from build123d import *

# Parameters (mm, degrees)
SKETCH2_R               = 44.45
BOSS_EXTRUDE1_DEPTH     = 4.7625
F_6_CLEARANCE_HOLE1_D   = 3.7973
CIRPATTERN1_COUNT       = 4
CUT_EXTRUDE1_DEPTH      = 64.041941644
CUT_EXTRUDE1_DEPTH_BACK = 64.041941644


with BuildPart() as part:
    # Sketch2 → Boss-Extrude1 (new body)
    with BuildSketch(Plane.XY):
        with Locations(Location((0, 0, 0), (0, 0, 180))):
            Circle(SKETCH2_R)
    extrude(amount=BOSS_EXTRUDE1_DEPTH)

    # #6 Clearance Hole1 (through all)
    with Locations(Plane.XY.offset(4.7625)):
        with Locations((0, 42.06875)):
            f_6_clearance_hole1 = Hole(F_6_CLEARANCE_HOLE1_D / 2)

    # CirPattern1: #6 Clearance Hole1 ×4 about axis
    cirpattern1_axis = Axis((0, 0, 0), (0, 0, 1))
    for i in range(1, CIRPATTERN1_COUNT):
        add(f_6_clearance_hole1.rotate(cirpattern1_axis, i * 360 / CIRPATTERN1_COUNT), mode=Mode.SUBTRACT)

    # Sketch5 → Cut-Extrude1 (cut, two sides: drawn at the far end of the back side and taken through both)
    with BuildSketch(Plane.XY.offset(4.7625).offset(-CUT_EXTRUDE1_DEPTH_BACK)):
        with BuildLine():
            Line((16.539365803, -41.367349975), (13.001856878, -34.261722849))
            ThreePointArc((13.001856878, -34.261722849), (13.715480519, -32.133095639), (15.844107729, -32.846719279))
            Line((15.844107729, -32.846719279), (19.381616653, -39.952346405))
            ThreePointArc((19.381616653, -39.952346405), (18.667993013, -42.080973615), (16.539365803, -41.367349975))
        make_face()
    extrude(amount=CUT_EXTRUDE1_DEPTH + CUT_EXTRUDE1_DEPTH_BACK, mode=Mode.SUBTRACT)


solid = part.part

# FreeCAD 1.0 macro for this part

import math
import FreeCAD as App
import Part
import Sketcher
Q = App.Units.Quantity

doc = App.newDocument("Part")
params = doc.addObject("Spreadsheet::Sheet", "Params")
for row, (alias, value) in enumerate([
    ("sketch1_diameter", "3.5 in"),
    ("pad1_length", "0.1875 in"),
    ("hole_diameter", "0.1495 in"),
    ("sketch3_radius", "0.0625 in"),
    ("sketch3_length", "0.3125 in"),
], start=1):
    params.set(f"A{row}", alias)
    params.set(f"B{row}", "=" + value)
    params.setAlias(f"B{row}", alias)

body = doc.addObject("PartDesign::Body", "Body")

sketch1 = body.newObject("Sketcher::SketchObject", "Sketch")
sketch1.AttachmentSupport = (doc.getObject("XY_Plane"), [""])
sketch1.MapMode = "FlatFace"
sketch1.addGeometry(Part.Circle(App.Vector(0, 0, 0), App.Vector(0, 0, 1), 44), False)
sketch1.addConstraint([
    Sketcher.Constraint("Coincident", 0, 3, -1, 1),
    Sketcher.Constraint("Diameter", 0, Q("3.5 in")),
])
sketch1.setExpression("Constraints[1]", "Params.sketch1_diameter")
pad1 = body.newObject("PartDesign::Pad", "Pad")
pad1.Profile = sketch1
pad1.setExpression("Length", "Params.pad1_length")

sketch2 = body.newObject("Sketcher::SketchObject", "Sketch001")
sketch2.AttachmentSupport = (doc.getObject("XY_Plane"), [""])
sketch2.MapMode = "FlatFace"
sketch2.AttachmentOffset = App.Placement(App.Vector(0, 0, 0.1875 * 25.4), App.Rotation())
sketch2.addGeometry(Part.Circle(App.Vector(0, 42.1, 0), App.Vector(0, 0, 1), 1.9), False)
sketch2.addConstraint([
    Sketcher.Constraint("PointOnObject", 0, 3, -2),
    Sketcher.Constraint("Diameter", 0, Q("0.1495 in")),
    Sketcher.Constraint("DistanceY", -1, 1, 0, 3, Q("1.65625 in")),
])
doc.recompute()
hole = body.newObject("PartDesign::Hole", "Hole")
hole.Profile = sketch2
hole.ThreadType = "None"
hole.setExpression("Diameter", "Params.hole_diameter")
hole.DepthType = "ThroughAll"
doc.recompute()

polarpattern = body.newObject("PartDesign::PolarPattern", "PolarPattern")
polarpattern.Originals = [hole]
polarpattern.Axis = (doc.getObject("Z_Axis"), [""])
polarpattern.Angle = 360
polarpattern.Occurrences = 4
body.Tip = polarpattern

sketch3 = body.newObject("Sketcher::SketchObject", "Sketch002")
sketch3.AttachmentSupport = (doc.getObject("XY_Plane"), [""])
sketch3.MapMode = "FlatFace"
sketch3.AttachmentOffset = App.Placement(App.Vector(0, 0, 0.1875 * 25.4), App.Rotation())
sketch3.addGeometry([
    Part.LineSegment(App.Vector(13, -34.3, 0), App.Vector(16.5, -41.4, 0)),
    Part.ArcOfCircle(Part.Circle(App.Vector(18, -40.7, 0), App.Vector(0, 0, 1), 1.6), math.radians(-154), math.radians(26)),
    Part.LineSegment(App.Vector(19.4, -40, 0), App.Vector(15.8, -32.8, 0)),
    Part.ArcOfCircle(Part.Circle(App.Vector(14.4, -33.6, 0), App.Vector(0, 0, 1), 1.6), math.radians(26), math.radians(206)),
], False)
sketch3.addConstraint([
    Sketcher.Constraint("Tangent", 0, 2, 1, 1),
    Sketcher.Constraint("Tangent", 1, 2, 2, 1),
    Sketcher.Constraint("Tangent", 2, 2, 3, 1),
    Sketcher.Constraint("Tangent", 3, 2, 0, 1),
    Sketcher.Constraint("Equal", 1, 3),
    Sketcher.Constraint("Radius", 1, Q("0.0625 in")),
    Sketcher.Constraint("Distance", 0, Q("0.3125 in")),
    Sketcher.Constraint("DistanceY", 0, 2, 1, 3, Q("0.707502 mm")),
    Sketcher.Constraint("DistanceX", -1, 1, 1, 3, Q("17.960491 mm")),
    Sketcher.Constraint("DistanceY", 1, 3, -1, 1, Q("40.659848 mm")),
])
sketch3.setExpression("Constraints[5]", "Params.sketch3_radius")
sketch3.setExpression("Constraints[6]", "Params.sketch3_length")
pocket1 = body.newObject("PartDesign::Pocket", "Pocket")
pocket1.Profile = sketch3
pocket1.Type = "ThroughAll"
pocket1.Midplane = True

doc.recompute()
